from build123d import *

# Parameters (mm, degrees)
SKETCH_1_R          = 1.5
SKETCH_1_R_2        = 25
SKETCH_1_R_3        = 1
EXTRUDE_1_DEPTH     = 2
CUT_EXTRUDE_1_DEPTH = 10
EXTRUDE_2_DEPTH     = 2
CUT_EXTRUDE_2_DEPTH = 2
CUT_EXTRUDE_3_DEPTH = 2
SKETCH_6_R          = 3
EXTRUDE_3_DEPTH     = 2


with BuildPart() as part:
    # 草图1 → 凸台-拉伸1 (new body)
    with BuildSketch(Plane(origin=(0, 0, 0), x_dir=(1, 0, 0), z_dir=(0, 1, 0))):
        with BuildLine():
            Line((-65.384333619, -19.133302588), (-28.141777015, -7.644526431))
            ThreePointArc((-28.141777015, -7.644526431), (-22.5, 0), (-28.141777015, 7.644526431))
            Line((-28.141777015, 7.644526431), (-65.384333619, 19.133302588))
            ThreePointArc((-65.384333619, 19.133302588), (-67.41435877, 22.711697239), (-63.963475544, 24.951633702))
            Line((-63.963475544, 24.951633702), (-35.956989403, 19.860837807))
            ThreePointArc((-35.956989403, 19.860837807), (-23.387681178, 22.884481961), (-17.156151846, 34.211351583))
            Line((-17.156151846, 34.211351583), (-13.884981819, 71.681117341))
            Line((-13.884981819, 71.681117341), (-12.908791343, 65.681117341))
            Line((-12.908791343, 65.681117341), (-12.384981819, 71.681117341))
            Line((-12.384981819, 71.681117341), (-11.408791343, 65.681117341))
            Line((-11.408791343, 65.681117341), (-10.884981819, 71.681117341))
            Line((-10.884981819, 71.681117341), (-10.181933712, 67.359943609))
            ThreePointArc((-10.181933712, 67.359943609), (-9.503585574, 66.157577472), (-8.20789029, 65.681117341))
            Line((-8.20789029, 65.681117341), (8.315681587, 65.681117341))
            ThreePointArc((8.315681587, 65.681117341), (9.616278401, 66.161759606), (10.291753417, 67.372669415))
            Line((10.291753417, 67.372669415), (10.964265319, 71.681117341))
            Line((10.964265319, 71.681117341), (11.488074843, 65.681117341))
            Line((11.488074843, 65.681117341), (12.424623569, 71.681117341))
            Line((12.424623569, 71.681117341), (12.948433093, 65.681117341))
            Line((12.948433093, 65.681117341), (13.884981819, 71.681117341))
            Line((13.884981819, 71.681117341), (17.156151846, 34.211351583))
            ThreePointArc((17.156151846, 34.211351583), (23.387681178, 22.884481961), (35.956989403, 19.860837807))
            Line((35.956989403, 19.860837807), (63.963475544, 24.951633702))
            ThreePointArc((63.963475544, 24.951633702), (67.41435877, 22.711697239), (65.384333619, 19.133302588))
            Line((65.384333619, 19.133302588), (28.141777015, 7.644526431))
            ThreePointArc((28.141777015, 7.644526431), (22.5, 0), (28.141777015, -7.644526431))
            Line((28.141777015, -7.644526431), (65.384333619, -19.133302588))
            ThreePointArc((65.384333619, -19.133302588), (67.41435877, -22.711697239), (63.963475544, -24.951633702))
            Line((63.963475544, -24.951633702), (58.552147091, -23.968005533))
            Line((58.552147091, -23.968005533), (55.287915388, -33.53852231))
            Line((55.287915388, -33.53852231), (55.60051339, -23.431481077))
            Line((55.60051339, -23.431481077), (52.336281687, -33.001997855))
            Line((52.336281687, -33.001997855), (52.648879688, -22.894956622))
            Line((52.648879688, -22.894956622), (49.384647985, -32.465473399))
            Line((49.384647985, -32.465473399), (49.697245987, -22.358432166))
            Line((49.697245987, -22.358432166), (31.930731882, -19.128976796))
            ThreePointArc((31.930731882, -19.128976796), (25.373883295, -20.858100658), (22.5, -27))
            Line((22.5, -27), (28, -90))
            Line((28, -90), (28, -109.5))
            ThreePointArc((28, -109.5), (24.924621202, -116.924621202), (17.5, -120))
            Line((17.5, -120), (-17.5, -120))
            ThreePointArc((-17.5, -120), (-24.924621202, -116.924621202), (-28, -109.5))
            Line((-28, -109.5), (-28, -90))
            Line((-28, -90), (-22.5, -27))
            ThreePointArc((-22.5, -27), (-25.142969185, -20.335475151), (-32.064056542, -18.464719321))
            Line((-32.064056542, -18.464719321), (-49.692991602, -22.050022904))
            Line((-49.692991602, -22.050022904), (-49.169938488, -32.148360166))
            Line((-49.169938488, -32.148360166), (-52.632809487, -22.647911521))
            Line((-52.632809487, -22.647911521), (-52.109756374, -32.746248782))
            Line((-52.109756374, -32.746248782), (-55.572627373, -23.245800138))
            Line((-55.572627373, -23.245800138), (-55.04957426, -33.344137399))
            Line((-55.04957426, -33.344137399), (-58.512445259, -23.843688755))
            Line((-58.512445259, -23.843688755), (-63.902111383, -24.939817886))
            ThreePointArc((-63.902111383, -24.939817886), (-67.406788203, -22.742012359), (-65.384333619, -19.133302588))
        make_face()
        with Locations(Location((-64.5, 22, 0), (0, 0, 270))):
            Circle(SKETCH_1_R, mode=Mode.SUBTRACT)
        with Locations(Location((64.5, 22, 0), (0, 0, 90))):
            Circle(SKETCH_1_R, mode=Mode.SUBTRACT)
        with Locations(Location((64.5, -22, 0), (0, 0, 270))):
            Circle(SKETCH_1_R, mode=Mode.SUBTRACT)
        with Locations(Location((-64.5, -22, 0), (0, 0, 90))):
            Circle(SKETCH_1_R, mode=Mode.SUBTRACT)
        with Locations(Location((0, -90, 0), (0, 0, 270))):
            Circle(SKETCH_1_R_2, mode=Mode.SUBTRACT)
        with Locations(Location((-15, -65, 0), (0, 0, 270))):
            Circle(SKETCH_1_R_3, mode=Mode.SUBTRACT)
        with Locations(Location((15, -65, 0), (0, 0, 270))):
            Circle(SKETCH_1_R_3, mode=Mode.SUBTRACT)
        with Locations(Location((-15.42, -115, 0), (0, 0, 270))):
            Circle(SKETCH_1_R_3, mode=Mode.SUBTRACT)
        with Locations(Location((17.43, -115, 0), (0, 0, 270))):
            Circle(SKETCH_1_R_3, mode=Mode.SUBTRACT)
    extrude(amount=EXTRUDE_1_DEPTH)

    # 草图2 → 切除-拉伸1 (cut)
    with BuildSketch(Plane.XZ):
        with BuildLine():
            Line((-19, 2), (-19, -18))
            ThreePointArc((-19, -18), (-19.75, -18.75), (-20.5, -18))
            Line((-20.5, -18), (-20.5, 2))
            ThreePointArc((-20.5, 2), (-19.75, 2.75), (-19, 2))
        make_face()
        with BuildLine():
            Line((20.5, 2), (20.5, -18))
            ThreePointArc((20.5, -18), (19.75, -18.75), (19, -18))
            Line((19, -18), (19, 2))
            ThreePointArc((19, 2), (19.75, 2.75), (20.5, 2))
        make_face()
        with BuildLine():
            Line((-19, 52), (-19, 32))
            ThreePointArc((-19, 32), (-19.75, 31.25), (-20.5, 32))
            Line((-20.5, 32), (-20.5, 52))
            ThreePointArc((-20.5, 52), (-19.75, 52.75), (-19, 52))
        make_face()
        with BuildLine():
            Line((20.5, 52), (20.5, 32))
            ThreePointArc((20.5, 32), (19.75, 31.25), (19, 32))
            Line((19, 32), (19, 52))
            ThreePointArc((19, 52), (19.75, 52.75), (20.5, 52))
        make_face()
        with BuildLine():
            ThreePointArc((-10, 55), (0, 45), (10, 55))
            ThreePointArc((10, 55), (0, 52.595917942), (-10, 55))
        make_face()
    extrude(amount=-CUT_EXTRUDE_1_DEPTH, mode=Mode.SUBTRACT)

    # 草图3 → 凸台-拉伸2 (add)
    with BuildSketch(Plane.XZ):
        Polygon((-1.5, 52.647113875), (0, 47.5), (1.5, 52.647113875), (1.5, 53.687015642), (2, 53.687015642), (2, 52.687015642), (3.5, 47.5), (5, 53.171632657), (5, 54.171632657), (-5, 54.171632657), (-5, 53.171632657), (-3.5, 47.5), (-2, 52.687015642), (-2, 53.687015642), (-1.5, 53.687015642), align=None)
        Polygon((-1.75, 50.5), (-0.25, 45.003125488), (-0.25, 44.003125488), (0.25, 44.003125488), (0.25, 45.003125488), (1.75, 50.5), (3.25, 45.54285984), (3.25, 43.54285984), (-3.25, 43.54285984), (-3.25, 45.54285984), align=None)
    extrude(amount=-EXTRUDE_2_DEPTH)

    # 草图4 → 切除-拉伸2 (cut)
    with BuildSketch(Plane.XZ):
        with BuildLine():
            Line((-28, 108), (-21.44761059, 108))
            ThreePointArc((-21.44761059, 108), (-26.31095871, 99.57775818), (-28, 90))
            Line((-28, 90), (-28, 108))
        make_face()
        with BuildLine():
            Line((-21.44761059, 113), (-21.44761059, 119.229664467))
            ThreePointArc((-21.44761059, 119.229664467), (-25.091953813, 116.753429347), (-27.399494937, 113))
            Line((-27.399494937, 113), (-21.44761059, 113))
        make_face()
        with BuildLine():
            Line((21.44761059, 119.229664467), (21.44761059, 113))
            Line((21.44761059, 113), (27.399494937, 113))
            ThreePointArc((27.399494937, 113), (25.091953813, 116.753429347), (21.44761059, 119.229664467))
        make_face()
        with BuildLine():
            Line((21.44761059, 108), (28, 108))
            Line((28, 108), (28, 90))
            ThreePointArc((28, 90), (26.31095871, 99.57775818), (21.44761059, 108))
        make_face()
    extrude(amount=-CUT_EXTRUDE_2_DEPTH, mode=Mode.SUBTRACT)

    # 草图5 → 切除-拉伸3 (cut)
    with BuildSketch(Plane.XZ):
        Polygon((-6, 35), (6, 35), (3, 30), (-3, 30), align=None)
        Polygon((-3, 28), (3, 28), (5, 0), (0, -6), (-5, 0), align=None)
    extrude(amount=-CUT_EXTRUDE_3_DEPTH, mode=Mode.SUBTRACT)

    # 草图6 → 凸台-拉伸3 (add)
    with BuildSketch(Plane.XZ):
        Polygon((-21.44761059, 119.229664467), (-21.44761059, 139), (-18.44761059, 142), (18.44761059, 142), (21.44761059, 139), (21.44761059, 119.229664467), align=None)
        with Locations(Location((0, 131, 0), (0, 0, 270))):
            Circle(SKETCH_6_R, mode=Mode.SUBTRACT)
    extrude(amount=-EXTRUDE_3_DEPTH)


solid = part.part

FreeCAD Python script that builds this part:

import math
import FreeCAD as App
import Part
import Sketcher
from FreeCAD import Vector

doc = App.newDocument("Part")
body = doc.addObject("PartDesign::Body", "Body")

sketch1 = body.newObject("Sketcher::SketchObject", "Sketch")
sketch1.AttachmentSupport = (doc.getObject("XZ_Plane"), [""])
sketch1.MapMode = "FlatFace"
sketch1.addGeometry([
    Part.LineSegment(Vector(-28.141777, 7.644526, 0), Vector(-65.384334, 19.133303, 0)),
    Part.ArcOfCircle(Part.Circle(Vector(-64.5, 22, 0), Vector(0, 0, 1), 3), math.radians(78.504194), math.radians(252.855782)),
    Part.LineSegment(Vector(-63.902111, 24.939818, 0), Vector(-58.512445, 23.843689, 0)),
    Part.LineSegment(Vector(-58.512445, 23.843689, 0), Vector(-55.049574, 33.344137, 0)),
    Part.LineSegment(Vector(-55.049574, 33.344137, 0), Vector(-55.572627, 23.2458, 0)),
    Part.LineSegment(Vector(-55.572627, 23.2458, 0), Vector(-52.109756, 32.746249, 0)),
    Part.LineSegment(Vector(-52.109756, 32.746249, 0), Vector(-52.632809, 22.647912, 0)),
    Part.LineSegment(Vector(-52.632809, 22.647912, 0), Vector(-49.169938, 32.14836, 0)),
    Part.LineSegment(Vector(-49.169938, 32.14836, 0), Vector(-49.692992, 22.050023, 0)),
    Part.LineSegment(Vector(-49.692992, 22.050023, 0), Vector(-32.064057, 18.464719, 0)),
    Part.ArcOfCircle(Part.Circle(Vector(-30.469687, 26.304234, 0), Vector(0, 0, 1), 8), math.radians(-101.495806), math.radians(4.989363)),
    Part.LineSegment(Vector(-22.5, 27, 0), Vector(-28, 90, 0)),
    Part.LineSegment(Vector(-28, 90, 0), Vector(-28, 109.5, 0)),
    Part.ArcOfCircle(Part.Circle(Vector(-17.5, 109.5, 0), Vector(0, 0, 1), 10.5), math.radians(90), math.radians(180)),
    Part.LineSegment(Vector(-17.5, 120, 0), Vector(17.5, 120, 0)),
    Part.ArcOfCircle(Part.Circle(Vector(17.5, 109.5, 0), Vector(0, 0, 1), 10.5), math.radians(0), math.radians(90)),
    Part.LineSegment(Vector(28, 109.5, 0), Vector(28, 90, 0)),
    Part.LineSegment(Vector(28, 90, 0), Vector(22.5, 27, 0)),
    Part.ArcOfCircle(Part.Circle(Vector(30.5, 27, 0), Vector(0, 0, 1), 8), math.radians(180), math.radians(280.302287)),
    Part.LineSegment(Vector(31.930732, 19.128977, 0), Vector(49.697246, 22.358432, 0)),
    Part.LineSegment(Vector(49.697246, 22.358432, 0), Vector(49.384648, 32.465473, 0)),
    Part.LineSegment(Vector(49.384648, 32.465473, 0), Vector(52.64888, 22.894957, 0)),
    Part.LineSegment(Vector(52.64888, 22.894957, 0), Vector(52.336282, 33.001998, 0)),
    Part.LineSegment(Vector(52.336282, 33.001998, 0), Vector(55.600513, 23.431481, 0)),
    Part.LineSegment(Vector(55.600513, 23.431481, 0), Vector(55.287915, 33.538522, 0)),
    Part.LineSegment(Vector(55.287915, 33.538522, 0), Vector(58.552147, 23.968006, 0)),
    Part.LineSegment(Vector(58.552147, 23.968006, 0), Vector(63.963476, 24.951634, 0)),
    Part.ArcOfCircle(Part.Circle(Vector(64.5, 22, 0), Vector(0, 0, 1), 3), math.radians(-72.855782), math.radians(100.302287)),
    Part.LineSegment(Vector(65.384334, 19.133303, 0), Vector(28.141777, 7.644526, 0)),
    Part.ArcOfCircle(Part.Circle(Vector(30.5, 0, 0), Vector(0, 0, 1), 8), math.radians(107.144218), math.radians(252.855782)),
    Part.LineSegment(Vector(28.141777, -7.644526, 0), Vector(65.384334, -19.133303, 0)),
    Part.ArcOfCircle(Part.Circle(Vector(64.5, -22, 0), Vector(0, 0, 1), 3), math.radians(-100.302287), math.radians(72.855782)),
    Part.LineSegment(Vector(63.963476, -24.951634, 0), Vector(35.956989, -19.860838, 0)),
    Part.ArcOfCircle(Part.Circle(Vector(33.095526, -35.602884, 0), Vector(0, 0, 1), 16), math.radians(79.697713), math.radians(175.010637)),
    Part.LineSegment(Vector(17.156152, -34.211352, 0), Vector(13.884982, -71.681117, 0)),
    Part.LineSegment(Vector(13.884982, -71.681117, 0), Vector(12.948433, -65.681117, 0)),
    Part.LineSegment(Vector(12.948433, -65.681117, 0), Vector(12.424624, -71.681117, 0)),
    Part.LineSegment(Vector(12.424624, -71.681117, 0), Vector(11.488075, -65.681117, 0)),
    Part.LineSegment(Vector(11.488075, -65.681117, 0), Vector(10.964265, -71.681117, 0)),
    Part.LineSegment(Vector(10.964265, -71.681117, 0), Vector(10.291753, -67.372669, 0)),
    Part.ArcOfCircle(Part.Circle(Vector(8.315682, -67.681117, 0), Vector(0, 0, 1), 2), math.radians(8.871791), math.radians(90)),
    Part.LineSegment(Vector(8.315682, -65.681117, 0), Vector(-8.20789, -65.681117, 0)),
    Part.ArcOfCircle(Part.Circle(Vector(-8.20789, -67.681117, 0), Vector(0, 0, 1), 2), math.radians(90), math.radians(170.759038)),
    Part.LineSegment(Vector(-10.181934, -67.359944, 0), Vector(-10.884982, -71.681117, 0)),
    Part.LineSegment(Vector(-10.884982, -71.681117, 0), Vector(-11.408791, -65.681117, 0)),
    Part.LineSegment(Vector(-11.408791, -65.681117, 0), Vector(-12.384982, -71.681117, 0)),
    Part.LineSegment(Vector(-12.384982, -71.681117, 0), Vector(-12.908791, -65.681117, 0)),
    Part.LineSegment(Vector(-12.908791, -65.681117, 0), Vector(-13.884982, -71.681117, 0)),
    Part.LineSegment(Vector(-13.884982, -71.681117, 0), Vector(-17.156152, -34.211352, 0)),
    Part.ArcOfCircle(Part.Circle(Vector(-33.095526, -35.602884, 0), Vector(0, 0, 1), 16), math.radians(4.989363), math.radians(100.302287)),
    Part.LineSegment(Vector(-35.956989, -19.860838, 0), Vector(-63.963476, -24.951634, 0)),
    Part.ArcOfCircle(Part.Circle(Vector(-64.5, -22, 0), Vector(0, 0, 1), 3), math.radians(107.144218), math.radians(280.302287)),
    Part.LineSegment(Vector(-65.384334, -19.133303, 0), Vector(-28.141777, -7.644526, 0)),
    Part.ArcOfCircle(Part.Circle(Vector(-30.5, 0, 0), Vector(0, 0, 1), 8), math.radians(-72.855782), math.radians(72.855782)),
    Part.Circle(Vector(17.43, 115, 0), Vector(0, 0, 1), 1),
    Part.Circle(Vector(15, 65, 0), Vector(0, 0, 1), 1),
    Part.Circle(Vector(-15.42, 115, 0), Vector(0, 0, 1), 1),
    Part.Circle(Vector(0, 90, 0), Vector(0, 0, 1), 25),
    Part.Circle(Vector(-15, 65, 0), Vector(0, 0, 1), 1),
    Part.Circle(Vector(64.5, 22, 0), Vector(0, 0, 1), 1.5),
    Part.Circle(Vector(64.5, -22, 0), Vector(0, 0, 1), 1.5),
    Part.Circle(Vector(-64.5, 22, 0), Vector(0, 0, 1), 1.5),
    Part.Circle(Vector(-64.5, -22, 0), Vector(0, 0, 1), 1.5),
], False)
sketch1.addConstraint([
    Sketcher.Constraint("Coincident", 0, 2, 1, 2),
    Sketcher.Constraint("Coincident", 1, 1, 2, 1),
    Sketcher.Constraint("Coincident", 2, 2, 3, 1),
    Sketcher.Constraint("Coincident", 3, 2, 4, 1),
    Sketcher.Constraint("Coincident", 4, 2, 5, 1),
    Sketcher.Constraint("Coincident", 5, 2, 6, 1),
    Sketcher.Constraint("Coincident", 6, 2, 7, 1),
    Sketcher.Constraint("Coincident", 7, 2, 8, 1),
    Sketcher.Constraint("Coincident", 8, 2, 9, 1),
    Sketcher.Constraint("Coincident", 9, 2, 10, 1),
    Sketcher.Constraint("Coincident", 10, 2, 11, 1),
    Sketcher.Constraint("Coincident", 11, 2, 12, 1),
    Sketcher.Constraint("Coincident", 12, 2, 13, 2),
    Sketcher.Constraint("Coincident", 13, 1, 14, 1),
    Sketcher.Constraint("Coincident", 14, 2, 15, 2),
    Sketcher.Constraint("Coincident", 15, 1, 16, 1),
    Sketcher.Constraint("Coincident", 16, 2, 17, 1),
    Sketcher.Constraint("Coincident", 17, 2, 18, 1),
    Sketcher.Constraint("Coincident", 18, 2, 19, 1),
    Sketcher.Constraint("Coincident", 19, 2, 20, 1),
    Sketcher.Constraint("Coincident", 20, 2, 21, 1),
    Sketcher.Constraint("Coincident", 21, 2, 22, 1),
    Sketcher.Constraint("Coincident", 22, 2, 23, 1),
    Sketcher.Constraint("Coincident", 23, 2, 24, 1),
    Sketcher.Constraint("Coincident", 24, 2, 25, 1),
    Sketcher.Constraint("Coincident", 25, 2, 26, 1),
    Sketcher.Constraint("Coincident", 26, 2, 27, 2),
    Sketcher.Constraint("Coincident", 27, 1, 28, 1),
    Sketcher.Constraint("Coincident", 28, 2, 29, 1),
    Sketcher.Constraint("Coincident", 29, 2, 30, 1),
    Sketcher.Constraint("Coincident", 30, 2, 31, 2),
    Sketcher.Constraint("Coincident", 31, 1, 32, 1),
    Sketcher.Constraint("Coincident", 32, 2, 33, 1),
    Sketcher.Constraint("Coincident", 33, 2, 34, 1),
    Sketcher.Constraint("Coincident", 34, 2, 35, 1),
    Sketcher.Constraint("Coincident", 35, 2, 36, 1),
    Sketcher.Constraint("Coincident", 36, 2, 37, 1),
    Sketcher.Constraint("Coincident", 37, 2, 38, 1),
    Sketcher.Constraint("Coincident", 38, 2, 39, 1),
    Sketcher.Constraint("Coincident", 39, 2, 40, 1),
    Sketcher.Constraint("Coincident", 40, 2, 41, 1),
    Sketcher.Constraint("Coincident", 41, 2, 42, 1),
    Sketcher.Constraint("Coincident", 42, 2, 43, 1),
    Sketcher.Constraint("Coincident", 43, 2, 44, 1),
    Sketcher.Constraint("Coincident", 44, 2, 45, 1),
    Sketcher.Constraint("Coincident", 45, 2, 46, 1),
    Sketcher.Constraint("Coincident", 46, 2, 47, 1),
    Sketcher.Constraint("Coincident", 47, 2, 48, 1),
    Sketcher.Constraint("Coincident", 48, 2, 49, 1),
    Sketcher.Constraint("Coincident", 49, 2, 50, 1),
    Sketcher.Constraint("Coincident", 50, 2, 51, 2),
    Sketcher.Constraint("Coincident", 51, 1, 52, 1),
    Sketcher.Constraint("Coincident", 52, 2, 53, 1),
    Sketcher.Constraint("Coincident", 53, 2, 0, 1),
    Sketcher.Constraint("Vertical", 12),
    Sketcher.Constraint("Horizontal", 14),
    Sketcher.Constraint("Vertical", 16),
    Sketcher.Constraint("Horizontal", 41),
    Sketcher.Constraint("Coincident", 59, 3, 27, 3),
    Sketcher.Constraint("Coincident", 60, 3, 31, 3),
    Sketcher.Constraint("Coincident", 61, 3, 1, 3),
    Sketcher.Constraint("Coincident", 62, 3, 51, 3),
    Sketcher.Constraint("PointOnObject", 29, 3, -1),
    Sketcher.Constraint("PointOnObject", 53, 3, -1),
    Sketcher.Constraint("PointOnObject", 57, 3, -2),
    Sketcher.Constraint("Diameter", 54, 2.0),
    Sketcher.Constraint("Diameter", 55, 2.0),
    Sketcher.Constraint("Diameter", 56, 2.0),
    Sketcher.Constraint("Diameter", 57, 50.0),
    Sketcher.Constraint("Diameter", 58, 2.0),
    Sketcher.Constraint("Diameter", 59, 3.0),
    Sketcher.Constraint("Diameter", 60, 3.0),
    Sketcher.Constraint("Diameter", 61, 3.0),
    Sketcher.Constraint("Diameter", 62, 3.0),
    Sketcher.Constraint("Radius", 1, 3.0),
    Sketcher.Constraint("Radius", 10, 8.0),
    Sketcher.Constraint("Radius", 18, 8.0),
    Sketcher.Constraint("Radius", 27, 3.0),
    Sketcher.Constraint("Radius", 29, 8.0),
    Sketcher.Constraint("Radius", 31, 3.0),
    Sketcher.Constraint("Radius", 33, 16.0),
    Sketcher.Constraint("Radius", 40, 2.0),
    Sketcher.Constraint("Radius", 42, 2.0),
    Sketcher.Constraint("Radius", 49, 16.0),
    Sketcher.Constraint("Radius", 51, 3.0),
    Sketcher.Constraint("Radius", 53, 8.0),
    Sketcher.Constraint("Radius", 13, 10.5),
    Sketcher.Constraint("Radius", 15, 10.5),
    Sketcher.Constraint("DistanceX", 14, 1, 14, 2, 35.0),
    Sketcher.Constraint("DistanceY", 12, 1, 12, 2, 19.5),
    Sketcher.Constraint("DistanceY", 16, 2, 16, 1, 19.5),
    Sketcher.Constraint("DistanceY", -1, 1, 1, 3, 22.0),
    Sketcher.Constraint("DistanceY", -1, 1, 18, 3, 27.0),
    Sketcher.Constraint("DistanceY", -1, 1, 27, 3, 22.0),
    Sketcher.Constraint("DistanceY", 31, 3, -1, 1, 22.0),
    Sketcher.Constraint("DistanceY", 51, 3, -1, 1, 22.0),
    Sketcher.Constraint("DistanceY", -1, 1, 54, 3, 115.0),
    Sketcher.Constraint("DistanceX", -1, 1, 55, 3, 15.0),
    Sketcher.Constraint("DistanceY", -1, 1, 55, 3, 65.0),
    Sketcher.Constraint("DistanceY", -1, 1, 56, 3, 115.0),
    Sketcher.Constraint("DistanceY", -1, 1, 57, 3, 90.0),
    Sketcher.Constraint("DistanceX", 58, 3, -1, 1, 15.0),
    Sketcher.Constraint("DistanceY", -1, 1, 58, 3, 65.0),
    Sketcher.Constraint("DistanceY", -1, 1, 10, 2, 27.0),
    Sketcher.Constraint("DistanceX", 11, 2, -1, 1, 28.0),
    Sketcher.Constraint("DistanceY", -1, 1, 11, 2, 90.0),
    Sketcher.Constraint("DistanceY", -1, 1, 13, 1, 120.0),
    Sketcher.Constraint("DistanceX", -1, 1, 15, 1, 28.0),
    Sketcher.Constraint("DistanceY", -1, 1, 16, 2, 90.0),
    Sketcher.Constraint("DistanceY", -1, 1, 17, 2, 27.0),
    Sketcher.Constraint("Distance", 2, 5.5),
    Sketcher.Constraint("Distance", 26, 5.5),
    Sketcher.Constraint("DistanceX", 1, 3, -1, 1, 64.5),
    Sketcher.Constraint("DistanceX", -1, 1, 18, 3, 30.5),
    Sketcher.Constraint("DistanceX", -1, 1, 27, 3, 64.5),
    Sketcher.Constraint("DistanceX", -1, 1, 29, 3, 30.5),
    Sketcher.Constraint("DistanceX", -1, 1, 31, 3, 64.5),
    Sketcher.Constraint("DistanceX", 51, 3, -1, 1, 64.5),
    Sketcher.Constraint("DistanceX", 53, 3, -1, 1, 30.5),
    Sketcher.Constraint("DistanceX", 10, 2, -1, 1, 22.5),
    Sketcher.Constraint("DistanceX", 13, 1, -1, 1, 17.5),
    Sketcher.Constraint("DistanceX", -1, 1, 54, 3, 17.43),
    Sketcher.Constraint("DistanceX", 56, 3, -1, 1, 15.42),
    Sketcher.Constraint("DistanceX", 41, 2, 41, 1, 16.523572),
    Sketcher.Constraint("DistanceY", -1, 1, 4, 2, 23.2458),
    Sketcher.Constraint("Distance", 0, 38.974351),
    Sketcher.Constraint("Distance", 19, 18.057641),
    Sketcher.Constraint("Distance", 28, 38.974351),
    Sketcher.Constraint("Distance", 30, 38.974351),
    Sketcher.Constraint("Distance", 32, 28.465408),
    Sketcher.Constraint("Distance", 36, 6.022821),
    Sketcher.Constraint("Distance", 38, 6.022821),
    Sketcher.Constraint("Distance", 39, 4.360619),
    Sketcher.Constraint("Distance", 44, 6.022821),
    Sketcher.Constraint("Distance", 46, 6.022821),
    Sketcher.Constraint("Distance", 50, 28.465408),
    Sketcher.Constraint("Distance", 52, 38.974351),
    Sketcher.Constraint("DistanceX", -1, 1, 40, 3, 8.315682),
    Sketcher.Constraint("DistanceX", 42, 3, -1, 1, 8.20789),
    Sketcher.Constraint("DistanceX", 1, 1, -1, 1, 63.902111),
    Sketcher.Constraint("DistanceY", -1, 1, 2, 2, 23.843689),
    Sketcher.Constraint("DistanceY", -1, 1, 5, 2, 32.746249),
    Sketcher.Constraint("DistanceX", 6, 2, -1, 1, 52.632809),
    Sketcher.Constraint("DistanceY", -1, 1, 6, 2, 22.647912),
    Sketcher.Constraint("DistanceX", 7, 2, -1, 1, 49.169938),
    Sketcher.Constraint("DistanceY", -1, 1, 7, 2, 32.14836),
    Sketcher.Constraint("DistanceX", 8, 2, -1, 1, 49.692992),
    Sketcher.Constraint("DistanceY", -1, 1, 9, 2, 18.464719),
    Sketcher.Constraint("DistanceX", -1, 1, 18, 2, 31.930732),
    Sketcher.Constraint("DistanceX", -1, 1, 21, 2, 52.64888),
    Sketcher.Constraint("DistanceX", -1, 1, 22, 2, 52.336282),
    Sketcher.Constraint("DistanceY", -1, 1, 23, 2, 23.431481),
    Sketcher.Constraint("DistanceX", -1, 1, 32, 2, 35.956989),
    Sketcher.Constraint("DistanceX", -1, 1, 33, 2, 17.156152),
    Sketcher.Constraint("DistanceY", 33, 2, -1, 1, 34.211352),
    Sketcher.Constraint("DistanceX", -1, 1, 34, 2, 13.884982),
    Sketcher.Constraint("DistanceY", 39, 2, -1, 1, 67.372669),
    Sketcher.Constraint("DistanceX", -1, 1, 40, 2, 8.315682),
    Sketcher.Constraint("DistanceX", 43, 2, -1, 1, 10.884982),
    Sketcher.Constraint("DistanceX", 44, 2, -1, 1, 11.408791),
    Sketcher.Constraint("DistanceX", 45, 2, -1, 1, 12.384982),
    Sketcher.Constraint("DistanceX", 46, 2, -1, 1, 12.908791),
    Sketcher.Constraint("DistanceX", 47, 2, -1, 1, 13.884982),
    Sketcher.Constraint("DistanceX", 48, 2, -1, 1, 17.156152),
    Sketcher.Constraint("DistanceY", 48, 2, -1, 1, 34.211352),
    Sketcher.Constraint("DistanceX", 49, 2, -1, 1, 35.956989),
    Sketcher.Constraint("Distance", 3, 10.111874),
    Sketcher.Constraint("Distance", 4, 10.111874),
    Sketcher.Constraint("Distance", 5, 10.111874),
    Sketcher.Constraint("Distance", 6, 10.111874),
    Sketcher.Constraint("Distance", 8, 10.111874),
    Sketcher.Constraint("Distance", 9, 17.989824),
    Sketcher.Constraint("Distance", 20, 10.111874),
    Sketcher.Constraint("Distance", 21, 10.111874),
    Sketcher.Constraint("Distance", 22, 10.111874),
    Sketcher.Constraint("Distance", 23, 10.111874),
    Sketcher.Constraint("Distance", 24, 10.111874),
    Sketcher.Constraint("Distance", 25, 10.111874),
    Sketcher.Constraint("Distance", 34, 37.612284),
    Sketcher.Constraint("Distance", 35, 6.072654),
    Sketcher.Constraint("Distance", 37, 6.072654),
    Sketcher.Constraint("Distance", 43, 4.377993),
    Sketcher.Constraint("Distance", 45, 6.078894),
    Sketcher.Constraint("Distance", 47, 6.078894),
    Sketcher.Constraint("Distance", 48, 37.612284),
    Sketcher.Constraint("DistanceX", -1, 1, 33, 3, 33.095526),
    Sketcher.Constraint("DistanceY", 40, 3, -1, 1, 67.681117),
    Sketcher.Constraint("DistanceX", 49, 3, -1, 1, 33.095526),
    Sketcher.Constraint("DistanceX", 0, 2, -1, 1, 65.384334),
    Sketcher.Constraint("DistanceX", -1, 1, 19, 2, 49.697246),
    Sketcher.Constraint("DistanceX", -1, 1, 20, 2, 49.384648),
    Sketcher.Constraint("DistanceX", -1, 1, 24, 2, 55.287915),
    Sketcher.Constraint("DistanceX", -1, 1, 25, 2, 58.552147),
    Sketcher.Constraint("DistanceX", -1, 1, 27, 1, 65.384334),
    Sketcher.Constraint("DistanceX", -1, 1, 29, 2, 28.141777),
    Sketcher.Constraint("DistanceX", -1, 1, 35, 2, 12.948433),
    Sketcher.Constraint("DistanceX", -1, 1, 36, 2, 12.424624),
    Sketcher.Constraint("DistanceX", -1, 1, 37, 2, 11.488075),
    Sketcher.Constraint("DistanceX", 51, 1, -1, 1, 65.384334),
])
pad1 = body.newObject("PartDesign::Pad", "Pad")
pad1.Profile = sketch1
pad1.Length = 2
pad1.Reversed = True

sketch2 = body.newObject("Sketcher::SketchObject", "Sketch001")
sketch2.AttachmentSupport = (doc.getObject("XZ_Plane"), [""])
sketch2.MapMode = "FlatFace"
sketch2.addGeometry([
    Part.LineSegment(Vector(-19, -18, 0), Vector(-19, 2, 0)),
    Part.ArcOfCircle(Part.Circle(Vector(-19.8, 2, 0), Vector(0, 0, 1), 0.8), math.radians(0), math.radians(180)),
    Part.LineSegment(Vector(-20.5, 2, 0), Vector(-20.5, -18, 0)),
    Part.ArcOfCircle(Part.Circle(Vector(-19.8, -18, 0), Vector(0, 0, 1), 0.8), math.radians(180), math.radians(360)),
    Part.LineSegment(Vector(20.5, -18, 0), Vector(20.5, 2, 0)),
    Part.ArcOfCircle(Part.Circle(Vector(19.8, 2, 0), Vector(0, 0, 1), 0.8), math.radians(0), math.radians(180)),
    Part.LineSegment(Vector(19, 2, 0), Vector(19, -18, 0)),
    Part.ArcOfCircle(Part.Circle(Vector(19.8, -18, 0), Vector(0, 0, 1), 0.8), math.radians(180), math.radians(360)),
    Part.LineSegment(Vector(-19, 32, 0), Vector(-19, 52, 0)),
    Part.ArcOfCircle(Part.Circle(Vector(-19.8, 52, 0), Vector(0, 0, 1), 0.8), math.radians(0), math.radians(180)),
    Part.LineSegment(Vector(-20.5, 52, 0), Vector(-20.5, 32, 0)),
    Part.ArcOfCircle(Part.Circle(Vector(-19.8, 32, 0), Vector(0, 0, 1), 0.8), math.radians(180), math.radians(360)),
    Part.LineSegment(Vector(20.5, 32, 0), Vector(20.5, 52, 0)),
    Part.ArcOfCircle(Part.Circle(Vector(19.8, 52, 0), Vector(0, 0, 1), 0.8), math.radians(0), math.radians(180)),
    Part.LineSegment(Vector(19, 52, 0), Vector(19, 32, 0)),
    Part.ArcOfCircle(Part.Circle(Vector(19.8, 32, 0), Vector(0, 0, 1), 0.8), math.radians(180), math.radians(360)),
    Part.ArcOfCircle(Part.Circle(Vector(0, 55, 0), Vector(0, 0, 1), 10), math.radians(180), math.radians(360)),
    Part.ArcOfCircle(Part.Circle(Vector(0, 74.6, 0), Vector(0, 0, 1), 22), math.radians(-117), math.radians(-63)),
], False)
sketch2.addConstraint([
    Sketcher.Constraint("Tangent", 0, 2, 1, 1),
    Sketcher.Constraint("Tangent", 1, 2, 2, 1),
    Sketcher.Constraint("Tangent", 2, 2, 3, 1),
    Sketcher.Constraint("Tangent", 3, 2, 0, 1),
    Sketcher.Constraint("Tangent", 4, 2, 5, 1),
    Sketcher.Constraint("Tangent", 5, 2, 6, 1),
    Sketcher.Constraint("Tangent", 6, 2, 7, 1),
    Sketcher.Constraint("Tangent", 7, 2, 4, 1),
    Sketcher.Constraint("Tangent", 8, 2, 9, 1),
    Sketcher.Constraint("Tangent", 9, 2, 10, 1),
    Sketcher.Constraint("Tangent", 10, 2, 11, 1),
    Sketcher.Constraint("Tangent", 11, 2, 8, 1),
    Sketcher.Constraint("Tangent", 12, 2, 13, 1),
    Sketcher.Constraint("Tangent", 13, 2, 14, 1),
    Sketcher.Constraint("Tangent", 14, 2, 15, 1),
    Sketcher.Constraint("Tangent", 15, 2, 12, 1),
    Sketcher.Constraint("Coincident", 16, 1, 17, 1),
    Sketcher.Constraint("Coincident", 17, 2, 16, 2),
    Sketcher.Constraint("Vertical", 0),
    Sketcher.Constraint("Vertical", 2),
    Sketcher.Constraint("Vertical", 4),
    Sketcher.Constraint("Vertical", 6),
    Sketcher.Constraint("Vertical", 8),
    Sketcher.Constraint("Vertical", 10),
    Sketcher.Constraint("Vertical", 12),
    Sketcher.Constraint("Vertical", 14),
    Sketcher.Constraint("Equal", 3, 5),
    Sketcher.Constraint("Equal", 7, 9),
    Sketcher.Constraint("Equal", 11, 13),
    Sketcher.Constraint("Symmetric", 1, 3, 5, 3, -2),
    Sketcher.Constraint("Symmetric", 9, 3, 13, 3, -2),
    Sketcher.Constraint("Symmetric", 16, 1, 17, 2, -2),
    Sketcher.Constraint("Horizontal", 3, 3, 7, 3),
    Sketcher.Constraint("Horizontal", 11, 3, 15, 3),
    Sketcher.Constraint("Vertical", 3, 3, 9, 3),
    Sketcher.Constraint("Equal", 6, 8),
    Sketcher.Constraint("Radius", 16, 10.0),
    Sketcher.Constraint("Radius", 17, 22.0),
    Sketcher.Constraint("DistanceY", 0, 1, 0, 2, 20.0),
    Sketcher.Constraint("Radius", 1, 0.75),
    Sketcher.Constraint("DistanceY", -1, 1, 1, 3, 2.0),
    Sketcher.Constraint("DistanceY", -1, 1, 9, 3, 52.0),
    Sketcher.Constraint("DistanceY", -1, 1, 16, 3, 55.0),
    Sketcher.Constraint("DistanceX", 0, 2, -1, 1, 19.0),
    Sketcher.Constraint("DistanceY", -1, 1, 16, 1, 55.0),
])
pocket1 = body.newObject("PartDesign::Pocket", "Pocket")
pocket1.Profile = sketch2
pocket1.Length = 10

sketch3 = body.newObject("Sketcher::SketchObject", "Sketch002")
sketch3.AttachmentSupport = (doc.getObject("XZ_Plane"), [""])
sketch3.MapMode = "FlatFace"
sketch3.addGeometry([
    Part.LineSegment(Vector(-1.5, 52.6, 0), Vector(0, 47.5, 0)),
    Part.LineSegment(Vector(0, 47.5, 0), Vector(1.5, 52.6, 0)),
    Part.LineSegment(Vector(1.5, 52.6, 0), Vector(1.5, 53.7, 0)),
    Part.LineSegment(Vector(1.5, 53.7, 0), Vector(2, 53.7, 0)),
    Part.LineSegment(Vector(2, 53.7, 0), Vector(2, 52.7, 0)),
    Part.LineSegment(Vector(2, 52.7, 0), Vector(3.5, 47.5, 0)),
    Part.LineSegment(Vector(3.5, 47.5, 0), Vector(5, 53.2, 0)),
    Part.LineSegment(Vector(5, 53.2, 0), Vector(5, 54.2, 0)),
    Part.LineSegment(Vector(5, 54.2, 0), Vector(-5, 54.2, 0)),
    Part.LineSegment(Vector(-5, 54.2, 0), Vector(-5, 53.2, 0)),
    Part.LineSegment(Vector(-5, 53.2, 0), Vector(-3.5, 47.5, 0)),
    Part.LineSegment(Vector(-3.5, 47.5, 0), Vector(-2, 52.7, 0)),
    Part.LineSegment(Vector(-2, 52.7, 0), Vector(-2, 53.7, 0)),
    Part.LineSegment(Vector(-2, 53.7, 0), Vector(-1.5, 53.7, 0)),
    Part.LineSegment(Vector(-1.5, 53.7, 0), Vector(-1.5, 52.6, 0)),
    Part.LineSegment(Vector(-0.2, 45, 0), Vector(-1.8, 50.5, 0)),
    Part.LineSegment(Vector(-1.8, 50.5, 0), Vector(-3.2, 45.5, 0)),
    Part.LineSegment(Vector(-3.2, 45.5, 0), Vector(-3.2, 43.5, 0)),
    Part.LineSegment(Vector(-3.2, 43.5, 0), Vector(3.2, 43.5, 0)),
    Part.LineSegment(Vector(3.2, 43.5, 0), Vector(3.2, 45.5, 0)),
    Part.LineSegment(Vector(3.2, 45.5, 0), Vector(1.8, 50.5, 0)),
    Part.LineSegment(Vector(1.8, 50.5, 0), Vector(0.2, 45, 0)),
    Part.LineSegment(Vector(0.2, 45, 0), Vector(0.2, 44, 0)),
    Part.LineSegment(Vector(0.2, 44, 0), Vector(-0.2, 44, 0)),
    Part.LineSegment(Vector(-0.2, 44, 0), Vector(-0.2, 45, 0)),
], False)
sketch3.addConstraint([
    Sketcher.Constraint("Coincident", 0, 2, 1, 1),
    Sketcher.Constraint("Coincident", 1, 2, 2, 1),
    Sketcher.Constraint("Coincident", 2, 2, 3, 1),
    Sketcher.Constraint("Coincident", 3, 2, 4, 1),
    Sketcher.Constraint("Coincident", 4, 2, 5, 1),
    Sketcher.Constraint("Coincident", 5, 2, 6, 1),
    Sketcher.Constraint("Coincident", 6, 2, 7, 1),
    Sketcher.Constraint("Coincident", 7, 2, 8, 1),
    Sketcher.Constraint("Coincident", 8, 2, 9, 1),
    Sketcher.Constraint("Coincident", 9, 2, 10, 1),
    Sketcher.Constraint("Coincident", 10, 2, 11, 1),
    Sketcher.Constraint("Coincident", 11, 2, 12, 1),
    Sketcher.Constraint("Coincident", 12, 2, 13, 1),
    Sketcher.Constraint("Coincident", 13, 2, 14, 1),
    Sketcher.Constraint("Coincident", 14, 2, 0, 1),
    Sketcher.Constraint("Coincident", 15, 2, 16, 1),
    Sketcher.Constraint("Coincident", 16, 2, 17, 1),
    Sketcher.Constraint("Coincident", 17, 2, 18, 1),
    Sketcher.Constraint("Coincident", 18, 2, 19, 1),
    Sketcher.Constraint("Coincident", 19, 2, 20, 1),
    Sketcher.Constraint("Coincident", 20, 2, 21, 1),
    Sketcher.Constraint("Coincident", 21, 2, 22, 1),
    Sketcher.Constraint("Coincident", 22, 2, 23, 1),
    Sketcher.Constraint("Coincident", 23, 2, 24, 1),
    Sketcher.Constraint("Coincident", 24, 2, 15, 1),
    Sketcher.Constraint("Vertical", 2),
    Sketcher.Constraint("Horizontal", 3),
    Sketcher.Constraint("Vertical", 4),
    Sketcher.Constraint("Vertical", 7),
    Sketcher.Constraint("Horizontal", 8),
    Sketcher.Constraint("Vertical", 9),
    Sketcher.Constraint("Vertical", 12),
    Sketcher.Constraint("Horizontal", 13),
    Sketcher.Constraint("Vertical", 14),
    Sketcher.Constraint("Vertical", 17),
    Sketcher.Constraint("Horizontal", 18),
    Sketcher.Constraint("Vertical", 19),
    Sketcher.Constraint("Vertical", 22),
    Sketcher.Constraint("Horizontal", 23),
    Sketcher.Constraint("Vertical", 24),
    Sketcher.Constraint("Symmetric", 6, 2, 9, 2, -2),
    Sketcher.Constraint("Symmetric", 5, 2, 10, 2, -2),
    Sketcher.Constraint("Symmetric", 4, 2, 11, 2, -2),
    Sketcher.Constraint("Symmetric", 2, 2, 13, 2, -2),
    Sketcher.Constraint("Symmetric", 16, 2, 19, 2, -2),
    Sketcher.Constraint("Symmetric", 15, 2, 20, 2, -2),
    Sketcher.Constraint("Symmetric", 21, 2, 24, 2, -2),
    Sketcher.Constraint("PointOnObject", 0, 2, -2),
    Sketcher.Constraint("Horizontal", 0, 2, 5, 2),
    Sketcher.Constraint("Horizontal", 1, 2, 14, 2),
    Sketcher.Constraint("Equal", 13, 23),
    Sketcher.Constraint("Equal", 4, 7),
    Sketcher.Constraint("Equal", 12, 22),
    Sketcher.Constraint("DistanceX", 8, 2, 8, 1, 10.0),
    Sketcher.Constraint("DistanceY", 4, 2, 4, 1, 1.0),
    Sketcher.Constraint("DistanceY", 17, 2, 17, 1, 2.0),
    Sketcher.Constraint("DistanceX", 3, 1, 3, 2, 0.5),
    Sketcher.Constraint("DistanceX", 18, 1, 18, 2, 6.5),
    Sketcher.Constraint("DistanceX", -1, 1, 3, 2, 2.0),
    Sketcher.Constraint("DistanceX", 1, 2, 5, 2, 2.0),
    Sketcher.Constraint("DistanceY", 0, 2, 15, 2, 3.0),
    Sketcher.Constraint("DistanceY", -1, 1, 0, 2, 47.5),
    Sketcher.Constraint("DistanceX", 16, 2, 15, 2, 1.5),
    Sketcher.Constraint("DistanceY", 2, 1, 2, 2, 1.039902),
    Sketcher.Constraint("Distance", 0, 5.361229),
    Sketcher.Constraint("Distance", 15, 5.697862),
    Sketcher.Constraint("DistanceY", -1, 1, 16, 2, 45.54286),
    Sketcher.Constraint("DistanceY", 1, 2, 6, 2, 0.524519),
])
pad2 = body.newObject("PartDesign::Pad", "Pad001")
pad2.Profile = sketch3
pad2.Length = 2
pad2.Reversed = True

sketch4 = body.newObject("Sketcher::SketchObject", "Sketch003")
sketch4.AttachmentSupport = (doc.getObject("XZ_Plane"), [""])
sketch4.MapMode = "FlatFace"
sketch4.addGeometry([
    Part.LineSegment(Vector(-21, 108, 0), Vector(-28, 108, 0)),
    Part.LineSegment(Vector(-28, 108, 0), Vector(-28, 90, 0)),
    Part.ArcOfCircle(Part.Circle(Vector(0, 90, 0), Vector(0, 0, 1), 28), math.radians(140), math.radians(180)),
    Part.LineSegment(Vector(-21, 113, 0), Vector(-21, 119, 0)),
    Part.ArcOfCircle(Part.Circle(Vector(-17, 109, 0), Vector(0, 0, 1), 11), math.radians(112), math.radians(161)),
    Part.LineSegment(Vector(-27, 113, 0), Vector(-21, 113, 0)),
    Part.LineSegment(Vector(21, 119, 0), Vector(21, 113, 0)),
    Part.LineSegment(Vector(21, 113, 0), Vector(27, 113, 0)),
    Part.ArcOfCircle(Part.Circle(Vector(17, 109, 0), Vector(0, 0, 1), 11), math.radians(19), math.radians(68)),
    Part.LineSegment(Vector(28, 108, 0), Vector(21, 108, 0)),
    Part.ArcOfCircle(Part.Circle(Vector(0, 90, 0), Vector(0, 0, 1), 28), math.radians(0), math.radians(40)),
    Part.LineSegment(Vector(28, 90, 0), Vector(28, 108, 0)),
], False)
sketch4.addConstraint([
    Sketcher.Constraint("Coincident", 0, 2, 1, 1),
    Sketcher.Constraint("Tangent", 1, 2, 2, 2),
    Sketcher.Constraint("Coincident", 2, 1, 0, 1),
    Sketcher.Constraint("Coincident", 3, 2, 4, 1),
    Sketcher.Constraint("Coincident", 4, 2, 5, 1),
    Sketcher.Constraint("Coincident", 5, 2, 3, 1),
    Sketcher.Constraint("Coincident", 6, 2, 7, 1),
    Sketcher.Constraint("Coincident", 7, 2, 8, 1),
    Sketcher.Constraint("Coincident", 8, 2, 6, 1),
    Sketcher.Constraint("Coincident", 9, 2, 10, 2),
    Sketcher.Constraint("Tangent", 10, 1, 11, 1),
    Sketcher.Constraint("Coincident", 11, 2, 9, 1),
    Sketcher.Constraint("Horizontal", 0),
    Sketcher.Constraint("Vertical", 1),
    Sketcher.Constraint("Vertical", 3),
    Sketcher.Constraint("Horizontal", 5),
    Sketcher.Constraint("Vertical", 6),
    Sketcher.Constraint("Horizontal", 7),
    Sketcher.Constraint("Horizontal", 9),
    Sketcher.Constraint("Vertical", 11),
    Sketcher.Constraint("Coincident", 10, 3, 2, 3),
    Sketcher.Constraint("Equal", 4, 8),
    Sketcher.Constraint("Equal", 2, 10),
    Sketcher.Constraint("Symmetric", 4, 3, 8, 3, -2),
    Sketcher.Constraint("Symmetric", 5, 2, 6, 2, -2),
    Sketcher.Constraint("Symmetric", 2, 1, 9, 2, -2),
    Sketcher.Constraint("Vertical", 2, 1, 3, 2),
    Sketcher.Constraint("Radius", 2, 28.0),
    Sketcher.Constraint("Radius", 4, 10.5),
    Sketcher.Constraint("DistanceY", 1, 2, 1, 1, 18.0),
    Sketcher.Constraint("DistanceY", -1, 1, 2, 3, 90.0),
    Sketcher.Constraint("DistanceY", -1, 1, 4, 2, 113.0),
    Sketcher.Constraint("DistanceX", 4, 3, 8, 3, 35.0),
    Sketcher.Constraint("DistanceY", -1, 1, 4, 3, 109.5),
])
pocket2 = body.newObject("PartDesign::Pocket", "Pocket001")
pocket2.Profile = sketch4
pocket2.Length = 2

sketch5 = body.newObject("Sketcher::SketchObject", "Sketch004")
sketch5.AttachmentSupport = (doc.getObject("XZ_Plane"), [""])
sketch5.MapMode = "FlatFace"
sketch5.addGeometry([
    Part.LineSegment(Vector(6, 35, 0), Vector(-6, 35, 0)),
    Part.LineSegment(Vector(-6, 35, 0), Vector(-3, 30, 0)),
    Part.LineSegment(Vector(-3, 30, 0), Vector(3, 30, 0)),
    Part.LineSegment(Vector(3, 30, 0), Vector(6, 35, 0)),
    Part.LineSegment(Vector(3, 28, 0), Vector(-3, 28, 0)),
    Part.LineSegment(Vector(-3, 28, 0), Vector(-5, 0, 0)),
    Part.LineSegment(Vector(-5, 0, 0), Vector(0, -6, 0)),
    Part.LineSegment(Vector(0, -6, 0), Vector(5, 0, 0)),
    Part.LineSegment(Vector(5, 0, 0), Vector(3, 28, 0)),
], False)
sketch5.addConstraint([
    Sketcher.Constraint("Coincident", 0, 2, 1, 1),
    Sketcher.Constraint("Coincident", 1, 2, 2, 1),
    Sketcher.Constraint("Coincident", 2, 2, 3, 1),
    Sketcher.Constraint("Coincident", 3, 2, 0, 1),
    Sketcher.Constraint("Coincident", 4, 2, 5, 1),
    Sketcher.Constraint("Coincident", 5, 2, 6, 1),
    Sketcher.Constraint("Coincident", 6, 2, 7, 1),
    Sketcher.Constraint("Coincident", 7, 2, 8, 1),
    Sketcher.Constraint("Coincident", 8, 2, 4, 1),
    Sketcher.Constraint("Horizontal", 0),
    Sketcher.Constraint("Horizontal", 2),
    Sketcher.Constraint("Horizontal", 4),
    Sketcher.Constraint("Symmetric", 5, 2, 7, 2, -1, 1),
    Sketcher.Constraint("PointOnObject", 5, 2, -1),
    Sketcher.Constraint("PointOnObject", 6, 2, -2),
    Sketcher.Constraint("Vertical", 1, 2, 4, 2),
    Sketcher.Constraint("Vertical", 2, 2, 8, 2),
    Sketcher.Constraint("Equal", 1, 3),
    Sketcher.Constraint("Equal", 5, 8),
    Sketcher.Constraint("DistanceX", 0, 2, 0, 1, 12.0),
    Sketcher.Constraint("DistanceX", 2, 1, 2, 2, 6.0),
    Sketcher.Constraint("DistanceY", -1, 1, 0, 2, 35.0),
    Sketcher.Constraint("DistanceY", -1, 1, 1, 2, 30.0),
    Sketcher.Constraint("DistanceY", -1, 1, 4, 2, 28.0),
    Sketcher.Constraint("DistanceX", 5, 2, -1, 1, 5.0),
    Sketcher.Constraint("DistanceY", 6, 2, -1, 1, 6.0),
])
pocket3 = body.newObject("PartDesign::Pocket", "Pocket002")
pocket3.Profile = sketch5
pocket3.Length = 2

sketch6 = body.newObject("Sketcher::SketchObject", "Sketch005")
sketch6.AttachmentSupport = (doc.getObject("XZ_Plane"), [""])
sketch6.MapMode = "FlatFace"
sketch6.addGeometry([
    Part.LineSegment(Vector(-21.4, 139, 0), Vector(-21.4, 119.2, 0)),
    Part.LineSegment(Vector(-21.4, 119.2, 0), Vector(21.4, 119.2, 0)),
    Part.LineSegment(Vector(21.4, 119.2, 0), Vector(21.4, 139, 0)),
    Part.LineSegment(Vector(21.4, 139, 0), Vector(18.4, 142, 0)),
    Part.LineSegment(Vector(18.4, 142, 0), Vector(-18.4, 142, 0)),
    Part.LineSegment(Vector(-18.4, 142, 0), Vector(-21.4, 139, 0)),
    Part.Circle(Vector(0, 131, 0), Vector(0, 0, 1), 3),
], False)
sketch6.addConstraint([
    Sketcher.Constraint("Coincident", 0, 2, 1, 1),
    Sketcher.Constraint("Coincident", 1, 2, 2, 1),
    Sketcher.Constraint("Coincident", 2, 2, 3, 1),
    Sketcher.Constraint("Coincident", 3, 2, 4, 1),
    Sketcher.Constraint("Coincident", 4, 2, 5, 1),
    Sketcher.Constraint("Coincident", 5, 2, 0, 1),
    Sketcher.Constraint("Vertical", 0),
    Sketcher.Constraint("Horizontal", 1),
    Sketcher.Constraint("Vertical", 2),
    Sketcher.Constraint("Horizontal", 4),
    Sketcher.Constraint("Symmetric", 2, 2, 5, 2, -2),
    Sketcher.Constraint("PointOnObject", 6, 3, -2),
    Sketcher.Constraint("Perpendicular", 3, 5),
    Sketcher.Constraint("Equal", 3, 5),
    Sketcher.Constraint("Diameter", 6, 6.0),
    Sketcher.Constraint("DistanceY", -1, 1, 6, 3, 131.0),
    Sketcher.Constraint("DistanceY", -1, 1, 2, 2, 139.0),
    Sketcher.Constraint("DistanceY", -1, 1, 3, 2, 142.0),
    Sketcher.Constraint("DistanceX", 1, 1, 1, 2, 42.895221),
    Sketcher.Constraint("DistanceY", 0, 2, 0, 1, 19.770336),
])
pad3 = body.newObject("PartDesign::Pad", "Pad002")
pad3.Profile = sketch6
pad3.Length = 2
pad3.Reversed = True

doc.recompute()
